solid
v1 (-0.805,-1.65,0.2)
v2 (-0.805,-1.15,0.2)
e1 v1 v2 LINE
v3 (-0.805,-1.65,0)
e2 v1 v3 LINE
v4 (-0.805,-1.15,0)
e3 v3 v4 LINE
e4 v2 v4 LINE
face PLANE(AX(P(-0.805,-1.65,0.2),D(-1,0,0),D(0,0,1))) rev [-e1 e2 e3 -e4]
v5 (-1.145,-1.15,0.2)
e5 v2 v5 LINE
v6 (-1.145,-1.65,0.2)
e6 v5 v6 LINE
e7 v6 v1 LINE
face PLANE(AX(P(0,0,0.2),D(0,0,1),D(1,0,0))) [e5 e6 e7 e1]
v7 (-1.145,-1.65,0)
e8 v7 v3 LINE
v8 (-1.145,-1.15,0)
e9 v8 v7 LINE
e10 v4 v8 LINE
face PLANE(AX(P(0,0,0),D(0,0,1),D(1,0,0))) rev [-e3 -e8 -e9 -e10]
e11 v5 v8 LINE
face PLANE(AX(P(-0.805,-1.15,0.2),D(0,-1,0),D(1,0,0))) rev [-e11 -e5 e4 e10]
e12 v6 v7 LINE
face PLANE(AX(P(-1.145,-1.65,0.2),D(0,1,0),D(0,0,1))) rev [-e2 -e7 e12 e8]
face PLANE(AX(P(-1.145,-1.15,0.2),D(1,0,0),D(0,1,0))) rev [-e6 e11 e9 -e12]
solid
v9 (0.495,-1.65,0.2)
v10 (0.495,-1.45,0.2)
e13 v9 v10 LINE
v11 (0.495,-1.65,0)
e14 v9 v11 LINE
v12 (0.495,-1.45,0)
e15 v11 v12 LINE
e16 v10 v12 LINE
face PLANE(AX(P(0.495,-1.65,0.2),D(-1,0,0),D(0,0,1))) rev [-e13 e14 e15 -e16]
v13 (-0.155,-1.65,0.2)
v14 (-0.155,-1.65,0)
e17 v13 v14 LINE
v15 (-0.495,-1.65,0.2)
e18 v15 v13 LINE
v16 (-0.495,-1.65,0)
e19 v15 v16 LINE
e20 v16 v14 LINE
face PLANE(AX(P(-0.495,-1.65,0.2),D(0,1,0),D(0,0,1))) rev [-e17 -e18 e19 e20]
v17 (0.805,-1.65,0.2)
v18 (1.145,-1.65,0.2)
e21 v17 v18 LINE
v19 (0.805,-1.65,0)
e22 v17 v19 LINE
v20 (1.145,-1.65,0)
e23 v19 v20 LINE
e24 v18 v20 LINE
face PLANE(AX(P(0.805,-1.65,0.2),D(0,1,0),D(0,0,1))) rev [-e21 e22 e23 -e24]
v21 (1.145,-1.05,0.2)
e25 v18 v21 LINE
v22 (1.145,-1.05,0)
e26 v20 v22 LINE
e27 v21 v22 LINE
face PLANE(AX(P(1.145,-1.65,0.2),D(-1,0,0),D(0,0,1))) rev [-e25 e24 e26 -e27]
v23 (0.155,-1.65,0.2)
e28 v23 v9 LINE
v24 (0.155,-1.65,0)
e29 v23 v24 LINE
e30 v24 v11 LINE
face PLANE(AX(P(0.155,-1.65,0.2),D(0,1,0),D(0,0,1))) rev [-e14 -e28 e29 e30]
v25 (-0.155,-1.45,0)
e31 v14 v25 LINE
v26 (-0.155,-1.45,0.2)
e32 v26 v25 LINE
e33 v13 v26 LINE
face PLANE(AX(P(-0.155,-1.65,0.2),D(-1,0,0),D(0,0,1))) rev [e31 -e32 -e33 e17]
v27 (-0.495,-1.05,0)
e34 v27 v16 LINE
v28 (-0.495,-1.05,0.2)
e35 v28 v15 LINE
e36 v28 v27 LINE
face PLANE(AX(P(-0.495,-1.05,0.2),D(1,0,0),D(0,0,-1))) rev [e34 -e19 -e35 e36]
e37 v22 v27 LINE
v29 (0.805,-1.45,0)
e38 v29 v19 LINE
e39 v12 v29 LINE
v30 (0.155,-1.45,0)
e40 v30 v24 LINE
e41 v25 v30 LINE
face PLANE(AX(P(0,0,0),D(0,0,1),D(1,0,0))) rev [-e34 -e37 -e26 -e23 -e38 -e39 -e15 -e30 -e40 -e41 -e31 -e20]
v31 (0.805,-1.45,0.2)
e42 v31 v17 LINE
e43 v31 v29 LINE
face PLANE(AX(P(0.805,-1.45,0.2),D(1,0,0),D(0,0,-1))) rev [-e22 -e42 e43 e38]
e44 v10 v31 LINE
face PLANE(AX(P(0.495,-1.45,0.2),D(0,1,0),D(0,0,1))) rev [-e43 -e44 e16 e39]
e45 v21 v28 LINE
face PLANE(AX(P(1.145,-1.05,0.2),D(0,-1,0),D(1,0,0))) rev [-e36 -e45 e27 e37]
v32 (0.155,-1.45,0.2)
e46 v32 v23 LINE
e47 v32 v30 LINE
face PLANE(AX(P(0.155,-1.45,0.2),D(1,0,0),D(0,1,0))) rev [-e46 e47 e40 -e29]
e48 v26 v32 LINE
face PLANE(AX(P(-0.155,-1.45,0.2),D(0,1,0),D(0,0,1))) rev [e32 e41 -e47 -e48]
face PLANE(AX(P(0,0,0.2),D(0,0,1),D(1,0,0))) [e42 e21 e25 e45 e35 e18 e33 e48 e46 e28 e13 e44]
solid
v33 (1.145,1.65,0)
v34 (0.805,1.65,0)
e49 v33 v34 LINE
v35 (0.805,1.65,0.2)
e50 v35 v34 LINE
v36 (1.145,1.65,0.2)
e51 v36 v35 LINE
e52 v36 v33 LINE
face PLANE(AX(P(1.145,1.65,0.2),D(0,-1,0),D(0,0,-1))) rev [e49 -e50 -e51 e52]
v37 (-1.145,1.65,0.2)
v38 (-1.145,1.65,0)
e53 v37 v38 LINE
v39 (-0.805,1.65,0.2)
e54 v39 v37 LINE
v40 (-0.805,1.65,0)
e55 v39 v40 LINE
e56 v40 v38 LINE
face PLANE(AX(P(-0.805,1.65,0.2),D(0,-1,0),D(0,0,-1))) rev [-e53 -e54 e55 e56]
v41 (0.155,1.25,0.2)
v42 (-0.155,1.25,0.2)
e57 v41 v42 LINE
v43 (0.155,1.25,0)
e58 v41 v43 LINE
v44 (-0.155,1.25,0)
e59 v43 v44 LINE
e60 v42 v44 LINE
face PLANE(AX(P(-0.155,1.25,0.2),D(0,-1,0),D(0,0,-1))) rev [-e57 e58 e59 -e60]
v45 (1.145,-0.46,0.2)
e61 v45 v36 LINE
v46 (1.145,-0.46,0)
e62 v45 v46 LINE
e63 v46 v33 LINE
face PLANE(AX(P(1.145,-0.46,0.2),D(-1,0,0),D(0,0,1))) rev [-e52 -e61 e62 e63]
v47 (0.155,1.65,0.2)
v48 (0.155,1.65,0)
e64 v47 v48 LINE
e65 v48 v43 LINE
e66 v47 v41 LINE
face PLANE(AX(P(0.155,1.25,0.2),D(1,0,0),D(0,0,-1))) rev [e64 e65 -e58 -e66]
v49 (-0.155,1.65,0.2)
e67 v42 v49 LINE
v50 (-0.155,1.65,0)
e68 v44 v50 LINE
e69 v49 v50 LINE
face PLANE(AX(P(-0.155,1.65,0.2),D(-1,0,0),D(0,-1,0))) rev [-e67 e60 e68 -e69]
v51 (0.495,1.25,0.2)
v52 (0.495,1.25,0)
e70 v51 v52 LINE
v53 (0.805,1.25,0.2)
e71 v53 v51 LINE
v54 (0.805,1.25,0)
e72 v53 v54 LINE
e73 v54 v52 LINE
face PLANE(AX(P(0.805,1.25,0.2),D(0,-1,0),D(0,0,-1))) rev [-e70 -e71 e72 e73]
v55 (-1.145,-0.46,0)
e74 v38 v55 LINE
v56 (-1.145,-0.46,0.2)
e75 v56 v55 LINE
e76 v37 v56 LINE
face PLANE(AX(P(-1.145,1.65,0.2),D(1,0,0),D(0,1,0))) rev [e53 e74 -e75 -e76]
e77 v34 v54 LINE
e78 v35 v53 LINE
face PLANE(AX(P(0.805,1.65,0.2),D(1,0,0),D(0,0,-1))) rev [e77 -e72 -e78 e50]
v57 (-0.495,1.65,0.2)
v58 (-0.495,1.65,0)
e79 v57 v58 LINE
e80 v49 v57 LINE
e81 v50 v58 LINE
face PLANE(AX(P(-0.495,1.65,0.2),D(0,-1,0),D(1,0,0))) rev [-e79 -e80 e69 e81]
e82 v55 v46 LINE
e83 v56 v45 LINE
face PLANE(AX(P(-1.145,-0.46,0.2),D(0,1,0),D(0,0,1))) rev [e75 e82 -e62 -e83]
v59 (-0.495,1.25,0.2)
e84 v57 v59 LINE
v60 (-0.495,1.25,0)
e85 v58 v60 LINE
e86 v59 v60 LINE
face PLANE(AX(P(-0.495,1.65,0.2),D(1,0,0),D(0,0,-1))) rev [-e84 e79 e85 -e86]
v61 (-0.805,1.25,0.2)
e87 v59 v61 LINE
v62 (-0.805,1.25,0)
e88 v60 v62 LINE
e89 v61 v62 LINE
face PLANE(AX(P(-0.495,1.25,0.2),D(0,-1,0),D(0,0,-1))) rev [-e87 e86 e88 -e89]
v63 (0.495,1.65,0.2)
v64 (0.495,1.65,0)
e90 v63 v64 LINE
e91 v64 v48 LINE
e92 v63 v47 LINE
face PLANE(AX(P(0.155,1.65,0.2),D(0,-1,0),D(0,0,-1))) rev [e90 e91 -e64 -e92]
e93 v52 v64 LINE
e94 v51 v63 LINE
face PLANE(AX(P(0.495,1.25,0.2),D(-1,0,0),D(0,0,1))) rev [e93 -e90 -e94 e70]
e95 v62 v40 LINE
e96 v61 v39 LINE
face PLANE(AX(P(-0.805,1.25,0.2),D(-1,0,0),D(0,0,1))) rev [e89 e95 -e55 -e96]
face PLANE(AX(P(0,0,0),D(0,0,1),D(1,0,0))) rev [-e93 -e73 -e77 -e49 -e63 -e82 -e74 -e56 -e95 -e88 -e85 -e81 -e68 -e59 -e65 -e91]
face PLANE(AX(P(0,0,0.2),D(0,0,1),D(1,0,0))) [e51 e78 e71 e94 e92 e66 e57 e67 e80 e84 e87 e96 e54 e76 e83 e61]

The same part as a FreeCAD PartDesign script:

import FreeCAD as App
import Part
import Sketcher
Q = App.Units.Quantity

doc = App.newDocument("Part")
body = doc.addObject("PartDesign::Body", "Body")

# Sketch on XY plane
sketch1 = doc.addObject("Sketcher::SketchObject", "Sketch")
body.addObject(sketch1)
sketch1.AttachmentSupport = (doc.XY_Plane, [""])
sketch1.MapMode = "FlatFace"
sketch1.addGeometry(Part.LineSegment(App.Vector(-1.15, 1.65, 0), App.Vector(-1.15, -0.46, 0)), False)
sketch1.addGeometry(Part.LineSegment(App.Vector(-1.15, -0.46, 0), App.Vector(1.15, -0.46, 0)), False)
sketch1.addGeometry(Part.LineSegment(App.Vector(1.15, -0.46, 0), App.Vector(1.15, 1.65, 0)), False)
sketch1.addGeometry(Part.LineSegment(App.Vector(1.15, 1.65, 0), App.Vector(0.81, 1.65, 0)), False)
sketch1.addGeometry(Part.LineSegment(App.Vector(0.81, 1.65, 0), App.Vector(0.81, 1.25, 0)), False)
sketch1.addGeometry(Part.LineSegment(App.Vector(0.81, 1.25, 0), App.Vector(0.49, 1.25, 0)), False)
sketch1.addGeometry(Part.LineSegment(App.Vector(0.49, 1.25, 0), App.Vector(0.49, 1.65, 0)), False)
sketch1.addGeometry(Part.LineSegment(App.Vector(0.49, 1.65, 0), App.Vector(0.15, 1.65, 0)), False)
sketch1.addGeometry(Part.LineSegment(App.Vector(0.15, 1.65, 0), App.Vector(0.15, 1.25, 0)), False)
sketch1.addGeometry(Part.LineSegment(App.Vector(0.15, 1.25, 0), App.Vector(-0.15, 1.25, 0)), False)
sketch1.addGeometry(Part.LineSegment(App.Vector(-0.15, 1.25, 0), App.Vector(-0.15, 1.65, 0)), False)
sketch1.addGeometry(Part.LineSegment(App.Vector(-0.15, 1.65, 0), App.Vector(-0.49, 1.65, 0)), False)
sketch1.addGeometry(Part.LineSegment(App.Vector(-0.49, 1.65, 0), App.Vector(-0.49, 1.25, 0)), False)
sketch1.addGeometry(Part.LineSegment(App.Vector(-0.49, 1.25, 0), App.Vector(-0.81, 1.25, 0)), False)
sketch1.addGeometry(Part.LineSegment(App.Vector(-0.81, 1.25, 0), App.Vector(-0.81, 1.65, 0)), False)
sketch1.addGeometry(Part.LineSegment(App.Vector(-0.81, 1.65, 0), App.Vector(-1.15, 1.65, 0)), False)
sketch1.addConstraint(Sketcher.Constraint("Coincident", 0, 2, 1, 1))
sketch1.addConstraint(Sketcher.Constraint("Coincident", 1, 2, 2, 1))
sketch1.addConstraint(Sketcher.Constraint("Coincident", 2, 2, 3, 1))
sketch1.addConstraint(Sketcher.Constraint("Coincident", 3, 2, 4, 1))
sketch1.addConstraint(Sketcher.Constraint("Coincident", 4, 2, 5, 1))
sketch1.addConstraint(Sketcher.Constraint("Coincident", 5, 2, 6, 1))
sketch1.addConstraint(Sketcher.Constraint("Coincident", 6, 2, 7, 1))
sketch1.addConstraint(Sketcher.Constraint("Coincident", 7, 2, 8, 1))
sketch1.addConstraint(Sketcher.Constraint("Coincident", 8, 2, 9, 1))
sketch1.addConstraint(Sketcher.Constraint("Coincident", 9, 2, 10, 1))
sketch1.addConstraint(Sketcher.Constraint("Coincident", 10, 2, 11, 1))
sketch1.addConstraint(Sketcher.Constraint("Coincident", 11, 2, 12, 1))
sketch1.addConstraint(Sketcher.Constraint("Coincident", 12, 2, 13, 1))
sketch1.addConstraint(Sketcher.Constraint("Coincident", 13, 2, 14, 1))
sketch1.addConstraint(Sketcher.Constraint("Coincident", 14, 2, 15, 1))
sketch1.addConstraint(Sketcher.Constraint("Coincident", 15, 2, 0, 1))
sketch1.addConstraint(Sketcher.Constraint("Vertical", 0))
sketch1.addConstraint(Sketcher.Constraint("Horizontal", 1))
sketch1.addConstraint(Sketcher.Constraint("Vertical", 2))
sketch1.addConstraint(Sketcher.Constraint("Horizontal", 3))
sketch1.addConstraint(Sketcher.Constraint("Vertical", 4))
sketch1.addConstraint(Sketcher.Constraint("Horizontal", 5))
sketch1.addConstraint(Sketcher.Constraint("Vertical", 6))
sketch1.addConstraint(Sketcher.Constraint("Horizontal", 7))
sketch1.addConstraint(Sketcher.Constraint("Vertical", 8))
sketch1.addConstraint(Sketcher.Constraint("Horizontal", 9))
sketch1.addConstraint(Sketcher.Constraint("Vertical", 10))
sketch1.addConstraint(Sketcher.Constraint("Horizontal", 11))
sketch1.addConstraint(Sketcher.Constraint("Vertical", 12))
sketch1.addConstraint(Sketcher.Constraint("Horizontal", 13))
sketch1.addConstraint(Sketcher.Constraint("Vertical", 14))
sketch1.addConstraint(Sketcher.Constraint("Horizontal", 15))
sketch1.addConstraint(Sketcher.Constraint("Symmetric", 7, 2, 10, 2, -2))
sketch1.addConstraint(Sketcher.Constraint("Symmetric", 5, 2, 12, 2, -2))
sketch1.addConstraint(Sketcher.Constraint("Symmetric", 3, 2, 14, 2, -2))
sketch1.addConstraint(Sketcher.Constraint("Horizontal", 3, 2, 6, 2))
sketch1.addConstraint(Sketcher.Constraint("Horizontal", 5, 2, 8, 2))
sketch1.addConstraint(Sketcher.Constraint("Equal", 3, 7))
sketch1.addConstraint(Sketcher.Constraint("Equal", 5, 9))
sketch1.addConstraint(Sketcher.Constraint("Equal", 11, 15))
sketch1.addConstraint(Sketcher.Constraint("DistanceY", 4, 2, 4, 1, Q("0.4 mm")))
sketch1.addConstraint(Sketcher.Constraint("DistanceX", 1, 1, 1, 2, Q("2.29 mm")))
sketch1.addConstraint(Sketcher.Constraint("DistanceX", 3, 2, 3, 1, Q("0.34 mm")))
sketch1.addConstraint(Sketcher.Constraint("DistanceY", 0, 2, 0, 1, Q("2.11 mm")))
sketch1.addConstraint(Sketcher.Constraint("DistanceY", 0, 2, -1, 1, Q("0.46 mm")))
pad1 = doc.addObject("PartDesign::Pad", "Pad")
body.addObject(pad1)
pad1.Profile = sketch1
pad1.Length = 0.2
body2 = doc.addObject("PartDesign::Body", "Body001")

# Sketch on XY plane
sketch2 = doc.addObject("Sketcher::SketchObject", "Sketch001")
body2.addObject(sketch2)
sketch2.AttachmentSupport = (doc.getObject("XY_Plane001"), [""])
sketch2.MapMode = "FlatFace"
sketch2.addGeometry(Part.LineSegment(App.Vector(1.15, -1.65, 0), App.Vector(1.15, -1.05, 0)), False)
sketch2.addGeometry(Part.LineSegment(App.Vector(1.15, -1.05, 0), App.Vector(-0.49, -1.05, 0)), False)
sketch2.addGeometry(Part.LineSegment(App.Vector(-0.49, -1.05, 0), App.Vector(-0.49, -1.65, 0)), False)
sketch2.addGeometry(Part.LineSegment(App.Vector(-0.49, -1.65, 0), App.Vector(-0.15, -1.65, 0)), False)
sketch2.addGeometry(Part.LineSegment(App.Vector(-0.15, -1.65, 0), App.Vector(-0.15, -1.45, 0)), False)
sketch2.addGeometry(Part.LineSegment(App.Vector(-0.15, -1.45, 0), App.Vector(0.15, -1.45, 0)), False)
sketch2.addGeometry(Part.LineSegment(App.Vector(0.15, -1.45, 0), App.Vector(0.15, -1.65, 0)), False)
sketch2.addGeometry(Part.LineSegment(App.Vector(0.15, -1.65, 0), App.Vector(0.49, -1.65, 0)), False)
sketch2.addGeometry(Part.LineSegment(App.Vector(0.49, -1.65, 0), App.Vector(0.49, -1.45, 0)), False)
sketch2.addGeometry(Part.LineSegment(App.Vector(0.49, -1.45, 0), App.Vector(0.81, -1.45, 0)), False)
sketch2.addGeometry(Part.LineSegment(App.Vector(0.81, -1.45, 0), App.Vector(0.81, -1.65, 0)), False)
sketch2.addGeometry(Part.LineSegment(App.Vector(0.81, -1.65, 0), App.Vector(1.15, -1.65, 0)), False)
sketch2.addConstraint(Sketcher.Constraint("Coincident", 0, 2, 1, 1))
sketch2.addConstraint(Sketcher.Constraint("Coincident", 1, 2, 2, 1))
sketch2.addConstraint(Sketcher.Constraint("Coincident", 2, 2, 3, 1))
sketch2.addConstraint(Sketcher.Constraint("Coincident", 3, 2, 4, 1))
sketch2.addConstraint(Sketcher.Constraint("Coincident", 4, 2, 5, 1))
sketch2.addConstraint(Sketcher.Constraint("Coincident", 5, 2, 6, 1))
sketch2.addConstraint(Sketcher.Constraint("Coincident", 6, 2, 7, 1))
sketch2.addConstraint(Sketcher.Constraint("Coincident", 7, 2, 8, 1))
sketch2.addConstraint(Sketcher.Constraint("Coincident", 8, 2, 9, 1))
sketch2.addConstraint(Sketcher.Constraint("Coincident", 9, 2, 10, 1))
sketch2.addConstraint(Sketcher.Constraint("Coincident", 10, 2, 11, 1))
sketch2.addConstraint(Sketcher.Constraint("Coincident", 11, 2, 0, 1))
sketch2.addConstraint(Sketcher.Constraint("Vertical", 0))
sketch2.addConstraint(Sketcher.Constraint("Horizontal", 1))
sketch2.addConstraint(Sketcher.Constraint("Vertical", 2))
sketch2.addConstraint(Sketcher.Constraint("Horizontal", 3))
sketch2.addConstraint(Sketcher.Constraint("Vertical", 4))
sketch2.addConstraint(Sketcher.Constraint("Horizontal", 5))
sketch2.addConstraint(Sketcher.Constraint("Vertical", 6))
sketch2.addConstraint(Sketcher.Constraint("Horizontal", 7))
sketch2.addConstraint(Sketcher.Constraint("Vertical", 8))
sketch2.addConstraint(Sketcher.Constraint("Horizontal", 9))
sketch2.addConstraint(Sketcher.Constraint("Vertical", 10))
sketch2.addConstraint(Sketcher.Constraint("Horizontal", 11))
sketch2.addConstraint(Sketcher.Constraint("Symmetric", 3, 2, 6, 2, -2))
sketch2.addConstraint(Sketcher.Constraint("Horizontal", 5, 2, 8, 2))
sketch2.addConstraint(Sketcher.Constraint("Horizontal", 7, 2, 10, 2))
sketch2.addConstraint(Sketcher.Constraint("Equal", 3, 7))
sketch2.addConstraint(Sketcher.Constraint("Equal", 5, 9))
sketch2.addConstraint(Sketcher.Constraint("Equal", 7, 11))
sketch2.addConstraint(Sketcher.Constraint("DistanceY", 0, 1, 0, 2, Q("0.6 mm")))
sketch2.addConstraint(Sketcher.Constraint("DistanceY", 4, 1, 4, 2, Q("0.2 mm")))
sketch2.addConstraint(Sketcher.Constraint("DistanceX", 1, 2, 1, 1, Q("1.64 mm")))
sketch2.addConstraint(Sketcher.Constraint("DistanceX", 3, 1, 3, 2, Q("0.34 mm")))
sketch2.addConstraint(Sketcher.Constraint("DistanceY", 0, 2, -1, 1, Q("1.05 mm")))
pad2 = doc.addObject("PartDesign::Pad", "Pad001")
body2.addObject(pad2)
pad2.Profile = sketch2
pad2.Length = 0.2
body3 = doc.addObject("PartDesign::Body", "Body002")

# Sketch on XY plane
sketch3 = doc.addObject("Sketcher::SketchObject", "Sketch002")
body3.addObject(sketch3)
sketch3.AttachmentSupport = (doc.getObject("XY_Plane002"), [""])
sketch3.MapMode = "FlatFace"
sketch3.addGeometry(Part.LineSegment(App.Vector(-1.15, -1.15, 0), App.Vector(-1.15, -1.65, 0)), False)
sketch3.addGeometry(Part.LineSegment(App.Vector(-1.15, -1.65, 0), App.Vector(-0.81, -1.65, 0)), False)
sketch3.addGeometry(Part.LineSegment(App.Vector(-0.81, -1.65, 0), App.Vector(-0.81, -1.15, 0)), False)
sketch3.addGeometry(Part.LineSegment(App.Vector(-0.81, -1.15, 0), App.Vector(-1.15, -1.15, 0)), False)
sketch3.addConstraint(Sketcher.Constraint("Coincident", 0, 2, 1, 1))
sketch3.addConstraint(Sketcher.Constraint("Coincident", 1, 2, 2, 1))
sketch3.addConstraint(Sketcher.Constraint("Coincident", 2, 2, 3, 1))
sketch3.addConstraint(Sketcher.Constraint("Coincident", 3, 2, 0, 1))
sketch3.addConstraint(Sketcher.Constraint("Vertical", 0))
sketch3.addConstraint(Sketcher.Constraint("Horizontal", 1))
sketch3.addConstraint(Sketcher.Constraint("Vertical", 2))
sketch3.addConstraint(Sketcher.Constraint("Horizontal", 3))
sketch3.addConstraint(Sketcher.Constraint("DistanceY", 0, 2, 0, 1, Q("0.5 mm")))
sketch3.addConstraint(Sketcher.Constraint("DistanceX", 1, 1, 1, 2, Q("0.34 mm")))
sketch3.addConstraint(Sketcher.Constraint("DistanceY", 0, 2, -1, 1, Q("1.65 mm")))
sketch3.addConstraint(Sketcher.Constraint("DistanceX", 0, 2, -1, 1, Q("1.145 mm")))
pad3 = doc.addObject("PartDesign::Pad", "Pad002")
body3.addObject(pad3)
pad3.Profile = sketch3
pad3.Length = 0.2

doc.recompute()
